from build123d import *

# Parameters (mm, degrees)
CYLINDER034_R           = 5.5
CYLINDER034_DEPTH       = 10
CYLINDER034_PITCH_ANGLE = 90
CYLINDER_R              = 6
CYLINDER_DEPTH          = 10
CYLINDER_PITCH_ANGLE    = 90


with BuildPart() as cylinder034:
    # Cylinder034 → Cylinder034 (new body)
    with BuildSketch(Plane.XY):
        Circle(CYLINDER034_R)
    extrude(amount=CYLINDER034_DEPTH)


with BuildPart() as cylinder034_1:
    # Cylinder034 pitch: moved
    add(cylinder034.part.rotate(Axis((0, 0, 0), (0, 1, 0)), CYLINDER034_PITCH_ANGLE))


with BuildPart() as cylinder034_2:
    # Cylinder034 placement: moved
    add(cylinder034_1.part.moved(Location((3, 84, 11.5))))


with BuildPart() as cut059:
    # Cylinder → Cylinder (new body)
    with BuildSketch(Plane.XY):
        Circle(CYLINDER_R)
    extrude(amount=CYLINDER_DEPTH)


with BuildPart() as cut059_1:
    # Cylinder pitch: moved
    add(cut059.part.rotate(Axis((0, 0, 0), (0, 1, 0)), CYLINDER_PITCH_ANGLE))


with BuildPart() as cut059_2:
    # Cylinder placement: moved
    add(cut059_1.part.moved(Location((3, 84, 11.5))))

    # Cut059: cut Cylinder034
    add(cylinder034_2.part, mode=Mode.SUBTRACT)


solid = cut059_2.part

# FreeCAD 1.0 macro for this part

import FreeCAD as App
import Part
import Sketcher

V = App.Vector
Q = App.Units.Quantity

doc = App.newDocument("Part")
params = doc.addObject("Spreadsheet::Sheet", "Params")
for row, (alias, value) in enumerate([
    ("sketch1_diameter", "11 mm"),
    ("pad1_length", "10 mm"),
    ("sketch2_diameter", "12 mm"),
    ("pad2_length", "10 mm"),
], start=1):
    params.set(f"A{row}", alias)
    params.set(f"B{row}", "=" + value)
    params.setAlias(f"B{row}", alias)

body = doc.addObject("PartDesign::Body", "Body")

sketch1 = body.newObject("Sketcher::SketchObject", "Sketch")
sketch1.AttachmentSupport = (doc.getObject("XY_Plane"), [""])
sketch1.MapMode = "FlatFace"
sketch1.addGeometry(Part.Circle(V(0, 0, 0), V(0, 0, 1), 6), False)
sketch1.addConstraint(Sketcher.Constraint("Coincident", 0, 3, -1, 1))
sketch1.addConstraint(Sketcher.Constraint("Diameter", 0, Q("11 mm")))
sketch1.setExpression("Constraints[1]", "Params.sketch1_diameter")
pad1 = body.newObject("PartDesign::Pad", "Pad")
pad1.Profile = sketch1
pad1.setExpression("Length", "Params.pad1_length")
body2 = doc.addObject("PartDesign::Body", "Body001")
doc.recompute()

body.Placement = App.Placement(V(0, 0, 0), App.Rotation(V(0, 1, 0), 90))
boolean = body2.newObject("PartDesign::Boolean", "Boolean")
boolean.Type = "Fuse"
boolean.addObjects([body])
body3 = doc.addObject("PartDesign::Body", "Body002")
doc.recompute()

body2.Placement = App.Placement(V(3, 84, 11.5), App.Rotation(V(0, 0, 1), 0))
boolean2 = body3.newObject("PartDesign::Boolean", "Boolean001")
boolean2.Type = "Fuse"
boolean2.addObjects([body2])
body4 = doc.addObject("PartDesign::Body", "Body003")

sketch2 = body4.newObject("Sketcher::SketchObject", "Sketch001")
sketch2.AttachmentSupport = (doc.getObject("XY_Plane003"), [""])
sketch2.MapMode = "FlatFace"
sketch2.addGeometry(Part.Circle(V(0, 0, 0), V(0, 0, 1), 6), False)
sketch2.addConstraint(Sketcher.Constraint("Coincident", 0, 3, -1, 1))
sketch2.addConstraint(Sketcher.Constraint("Diameter", 0, Q("12 mm")))
sketch2.setExpression("Constraints[1]", "Params.sketch2_diameter")
pad2 = body4.newObject("PartDesign::Pad", "Pad001")
pad2.Profile = sketch2
pad2.setExpression("Length", "Params.pad2_length")
body5 = doc.addObject("PartDesign::Body", "Body004")
doc.recompute()

body4.Placement = App.Placement(V(0, 0, 0), App.Rotation(V(0, 1, 0), 90))
boolean3 = body5.newObject("PartDesign::Boolean", "Boolean002")
boolean3.Type = "Fuse"
boolean3.addObjects([body4])
body6 = doc.addObject("PartDesign::Body", "Body005")
doc.recompute()

body5.Placement = App.Placement(V(3, 84, 11.5), App.Rotation(V(0, 0, 1), 0))
boolean4 = body6.newObject("PartDesign::Boolean", "Boolean003")
boolean4.Type = "Fuse"
boolean4.addObjects([body5])
doc.recompute()

boolean5 = body6.newObject("PartDesign::Boolean", "Boolean004")
boolean5.Type = "Cut"
boolean5.addObjects([body3])

doc.recompute()
